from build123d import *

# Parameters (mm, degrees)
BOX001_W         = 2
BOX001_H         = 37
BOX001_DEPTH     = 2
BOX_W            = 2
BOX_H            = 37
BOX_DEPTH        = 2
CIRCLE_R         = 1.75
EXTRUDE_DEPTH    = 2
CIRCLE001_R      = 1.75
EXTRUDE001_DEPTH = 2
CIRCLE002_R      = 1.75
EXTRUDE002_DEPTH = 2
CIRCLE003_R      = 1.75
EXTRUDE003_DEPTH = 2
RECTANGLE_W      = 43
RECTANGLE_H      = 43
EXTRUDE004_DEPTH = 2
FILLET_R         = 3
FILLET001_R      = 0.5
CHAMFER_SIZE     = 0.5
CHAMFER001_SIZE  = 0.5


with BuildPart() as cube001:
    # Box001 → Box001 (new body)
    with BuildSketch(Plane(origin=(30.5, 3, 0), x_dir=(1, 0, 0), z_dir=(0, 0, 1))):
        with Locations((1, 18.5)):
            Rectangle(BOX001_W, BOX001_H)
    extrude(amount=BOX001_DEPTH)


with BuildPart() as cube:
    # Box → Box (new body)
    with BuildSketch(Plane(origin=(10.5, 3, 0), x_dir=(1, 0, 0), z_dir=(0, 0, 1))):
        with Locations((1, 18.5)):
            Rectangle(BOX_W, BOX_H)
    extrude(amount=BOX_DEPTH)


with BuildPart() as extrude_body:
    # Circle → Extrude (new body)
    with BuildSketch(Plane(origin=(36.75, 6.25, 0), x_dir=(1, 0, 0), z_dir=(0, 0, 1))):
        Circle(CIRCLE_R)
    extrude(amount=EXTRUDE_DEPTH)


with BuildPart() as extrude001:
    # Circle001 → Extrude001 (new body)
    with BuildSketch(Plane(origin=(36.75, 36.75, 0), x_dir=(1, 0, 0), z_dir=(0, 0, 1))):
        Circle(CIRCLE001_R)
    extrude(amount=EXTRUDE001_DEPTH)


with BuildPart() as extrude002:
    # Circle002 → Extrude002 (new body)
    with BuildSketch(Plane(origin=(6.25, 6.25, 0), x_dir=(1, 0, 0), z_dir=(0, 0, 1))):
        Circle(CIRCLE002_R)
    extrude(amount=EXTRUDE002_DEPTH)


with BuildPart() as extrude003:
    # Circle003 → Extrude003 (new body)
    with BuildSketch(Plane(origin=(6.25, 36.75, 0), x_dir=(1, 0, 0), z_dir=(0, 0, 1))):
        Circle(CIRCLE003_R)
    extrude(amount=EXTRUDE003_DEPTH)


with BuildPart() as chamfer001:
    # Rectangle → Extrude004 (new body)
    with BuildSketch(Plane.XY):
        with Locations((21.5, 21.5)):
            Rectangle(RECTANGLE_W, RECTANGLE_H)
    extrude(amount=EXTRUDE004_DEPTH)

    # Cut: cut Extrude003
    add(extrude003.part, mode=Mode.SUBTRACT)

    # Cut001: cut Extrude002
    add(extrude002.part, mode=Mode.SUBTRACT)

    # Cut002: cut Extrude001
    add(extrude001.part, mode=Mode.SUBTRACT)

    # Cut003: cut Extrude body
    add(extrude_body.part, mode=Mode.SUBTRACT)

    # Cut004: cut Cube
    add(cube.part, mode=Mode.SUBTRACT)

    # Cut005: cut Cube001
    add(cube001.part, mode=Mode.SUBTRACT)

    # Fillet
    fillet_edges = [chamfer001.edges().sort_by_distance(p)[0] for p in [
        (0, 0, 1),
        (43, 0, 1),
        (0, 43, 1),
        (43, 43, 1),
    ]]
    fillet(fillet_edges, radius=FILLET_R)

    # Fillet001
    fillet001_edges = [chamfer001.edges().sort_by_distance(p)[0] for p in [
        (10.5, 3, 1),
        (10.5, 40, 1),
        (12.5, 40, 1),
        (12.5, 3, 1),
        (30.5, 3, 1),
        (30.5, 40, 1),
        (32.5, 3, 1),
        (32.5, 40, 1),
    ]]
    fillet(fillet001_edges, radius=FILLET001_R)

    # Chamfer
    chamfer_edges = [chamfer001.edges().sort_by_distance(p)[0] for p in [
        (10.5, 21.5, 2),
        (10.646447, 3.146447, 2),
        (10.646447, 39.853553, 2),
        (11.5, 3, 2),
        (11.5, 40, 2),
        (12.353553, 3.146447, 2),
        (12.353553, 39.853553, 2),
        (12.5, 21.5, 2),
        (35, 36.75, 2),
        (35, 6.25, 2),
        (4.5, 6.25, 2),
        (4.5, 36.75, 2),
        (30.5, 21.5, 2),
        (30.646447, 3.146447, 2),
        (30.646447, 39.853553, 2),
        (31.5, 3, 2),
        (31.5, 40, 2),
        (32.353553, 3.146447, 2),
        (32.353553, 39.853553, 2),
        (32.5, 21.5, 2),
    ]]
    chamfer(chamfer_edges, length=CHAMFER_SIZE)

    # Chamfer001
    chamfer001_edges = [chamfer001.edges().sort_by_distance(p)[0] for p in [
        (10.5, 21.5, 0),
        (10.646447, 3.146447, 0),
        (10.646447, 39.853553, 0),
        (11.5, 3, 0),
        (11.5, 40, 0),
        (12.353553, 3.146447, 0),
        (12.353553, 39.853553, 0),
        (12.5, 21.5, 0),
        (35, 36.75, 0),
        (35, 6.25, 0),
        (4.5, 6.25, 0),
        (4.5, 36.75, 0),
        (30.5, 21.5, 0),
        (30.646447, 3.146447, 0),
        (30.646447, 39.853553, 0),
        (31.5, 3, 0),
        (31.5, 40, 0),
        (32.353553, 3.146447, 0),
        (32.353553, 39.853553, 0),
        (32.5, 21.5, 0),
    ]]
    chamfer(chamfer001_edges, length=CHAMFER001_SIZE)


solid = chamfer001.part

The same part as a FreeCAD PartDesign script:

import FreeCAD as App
import Part
import Sketcher

V = App.Vector
Q = App.Units.Quantity


def edges_at(feature, points):
    """Names of the edges that pass closest to the given points."""
    edges = feature.Shape.Edges
    near = lambda p: min(range(len(edges)), key=lambda i: edges[i].distToShape(Part.Vertex(*p))[0])
    return sorted({f"Edge{near(p) + 1}" for p in points})

doc = App.newDocument("Part")
body = doc.addObject("PartDesign::Body", "Body")

# Sketch on XY plane
sketch1 = body.newObject("Sketcher::SketchObject", "Sketch")
sketch1.AttachmentSupport = (doc.getObject("XY_Plane"), [""])
sketch1.MapMode = "FlatFace"
sketch1.addGeometry(Part.LineSegment(V(30.5, 40, 0), V(30.5, 3, 0)), False)
sketch1.addGeometry(Part.LineSegment(V(30.5, 3, 0), V(32.5, 3, 0)), False)
sketch1.addGeometry(Part.LineSegment(V(32.5, 3, 0), V(32.5, 40, 0)), False)
sketch1.addGeometry(Part.LineSegment(V(32.5, 40, 0), V(30.5, 40, 0)), False)
sketch1.addConstraint(Sketcher.Constraint("Coincident", 0, 2, 1, 1))
sketch1.addConstraint(Sketcher.Constraint("Coincident", 1, 2, 2, 1))
sketch1.addConstraint(Sketcher.Constraint("Coincident", 2, 2, 3, 1))
sketch1.addConstraint(Sketcher.Constraint("Coincident", 3, 2, 0, 1))
sketch1.addConstraint(Sketcher.Constraint("Vertical", 0))
sketch1.addConstraint(Sketcher.Constraint("Horizontal", 1))
sketch1.addConstraint(Sketcher.Constraint("Vertical", 2))
sketch1.addConstraint(Sketcher.Constraint("Horizontal", 3))
sketch1.addConstraint(Sketcher.Constraint("DistanceX", 1, 1, 1, 2, Q("2 mm")))
sketch1.addConstraint(Sketcher.Constraint("DistanceY", 0, 2, 0, 1, Q("37 mm")))
sketch1.addConstraint(Sketcher.Constraint("DistanceY", -1, 1, 0, 2, Q("3 mm")))
sketch1.addConstraint(Sketcher.Constraint("DistanceX", -1, 1, 0, 2, Q("30.5 mm")))
pad1 = body.newObject("PartDesign::Pad", "Pad")
pad1.Profile = sketch1
pad1.Length = 2
body2 = doc.addObject("PartDesign::Body", "Body001")

# Sketch on XY plane
sketch2 = body2.newObject("Sketcher::SketchObject", "Sketch001")
sketch2.AttachmentSupport = (doc.getObject("XY_Plane001"), [""])
sketch2.MapMode = "FlatFace"
sketch2.addGeometry(Part.LineSegment(V(10.5, 40, 0), V(10.5, 3, 0)), False)
sketch2.addGeometry(Part.LineSegment(V(10.5, 3, 0), V(12.5, 3, 0)), False)
sketch2.addGeometry(Part.LineSegment(V(12.5, 3, 0), V(12.5, 40, 0)), False)
sketch2.addGeometry(Part.LineSegment(V(12.5, 40, 0), V(10.5, 40, 0)), False)
sketch2.addConstraint(Sketcher.Constraint("Coincident", 0, 2, 1, 1))
sketch2.addConstraint(Sketcher.Constraint("Coincident", 1, 2, 2, 1))
sketch2.addConstraint(Sketcher.Constraint("Coincident", 2, 2, 3, 1))
sketch2.addConstraint(Sketcher.Constraint("Coincident", 3, 2, 0, 1))
sketch2.addConstraint(Sketcher.Constraint("Vertical", 0))
sketch2.addConstraint(Sketcher.Constraint("Horizontal", 1))
sketch2.addConstraint(Sketcher.Constraint("Vertical", 2))
sketch2.addConstraint(Sketcher.Constraint("Horizontal", 3))
sketch2.addConstraint(Sketcher.Constraint("DistanceX", 1, 1, 1, 2, Q("2 mm")))
sketch2.addConstraint(Sketcher.Constraint("DistanceY", 0, 2, 0, 1, Q("37 mm")))
sketch2.addConstraint(Sketcher.Constraint("DistanceY", -1, 1, 0, 2, Q("3 mm")))
sketch2.addConstraint(Sketcher.Constraint("DistanceX", -1, 1, 0, 2, Q("10.5 mm")))
pad2 = body2.newObject("PartDesign::Pad", "Pad001")
pad2.Profile = sketch2
pad2.Length = 2
body3 = doc.addObject("PartDesign::Body", "Body002")

# Sketch on XY plane
sketch3 = body3.newObject("Sketcher::SketchObject", "Sketch002")
sketch3.AttachmentSupport = (doc.getObject("XY_Plane002"), [""])
sketch3.MapMode = "FlatFace"
sketch3.addGeometry(Part.Circle(V(36.8, 6.2, 0), V(0, 0, 1), 1.8), False)
sketch3.addConstraint(Sketcher.Constraint("Diameter", 0, Q("3.5 mm")))
sketch3.addConstraint(Sketcher.Constraint("DistanceX", -1, 1, 0, 3, Q("36.75 mm")))
sketch3.addConstraint(Sketcher.Constraint("DistanceY", -1, 1, 0, 3, Q("6.25 mm")))
pad3 = body3.newObject("PartDesign::Pad", "Pad002")
pad3.Profile = sketch3
pad3.Length = 2
body4 = doc.addObject("PartDesign::Body", "Body003")

# Sketch on XY plane
sketch4 = body4.newObject("Sketcher::SketchObject", "Sketch003")
sketch4.AttachmentSupport = (doc.getObject("XY_Plane003"), [""])
sketch4.MapMode = "FlatFace"
sketch4.addGeometry(Part.Circle(V(36.8, 36.8, 0), V(0, 0, 1), 1.8), False)
sketch4.addConstraint(Sketcher.Constraint("Diameter", 0, Q("3.5 mm")))
sketch4.addConstraint(Sketcher.Constraint("DistanceX", -1, 1, 0, 3, Q("36.75 mm")))
sketch4.addConstraint(Sketcher.Constraint("DistanceY", -1, 1, 0, 3, Q("36.75 mm")))
pad4 = body4.newObject("PartDesign::Pad", "Pad003")
pad4.Profile = sketch4
pad4.Length = 2
body5 = doc.addObject("PartDesign::Body", "Body004")

# Sketch on XY plane
sketch5 = body5.newObject("Sketcher::SketchObject", "Sketch004")
sketch5.AttachmentSupport = (doc.getObject("XY_Plane004"), [""])
sketch5.MapMode = "FlatFace"
sketch5.addGeometry(Part.Circle(V(6.2, 6.2, 0), V(0, 0, 1), 1.8), False)
sketch5.addConstraint(Sketcher.Constraint("Diameter", 0, Q("3.5 mm")))
sketch5.addConstraint(Sketcher.Constraint("DistanceX", -1, 1, 0, 3, Q("6.25 mm")))
sketch5.addConstraint(Sketcher.Constraint("DistanceY", -1, 1, 0, 3, Q("6.25 mm")))
pad5 = body5.newObject("PartDesign::Pad", "Pad004")
pad5.Profile = sketch5
pad5.Length = 2
body6 = doc.addObject("PartDesign::Body", "Body005")

# Sketch on XY plane
sketch6 = body6.newObject("Sketcher::SketchObject", "Sketch005")
sketch6.AttachmentSupport = (doc.getObject("XY_Plane005"), [""])
sketch6.MapMode = "FlatFace"
sketch6.addGeometry(Part.Circle(V(6.2, 36.8, 0), V(0, 0, 1), 1.8), False)
sketch6.addConstraint(Sketcher.Constraint("Diameter", 0, Q("3.5 mm")))
sketch6.addConstraint(Sketcher.Constraint("DistanceX", -1, 1, 0, 3, Q("6.25 mm")))
sketch6.addConstraint(Sketcher.Constraint("DistanceY", -1, 1, 0, 3, Q("36.75 mm")))
pad6 = body6.newObject("PartDesign::Pad", "Pad005")
pad6.Profile = sketch6
pad6.Length = 2
body7 = doc.addObject("PartDesign::Body", "Body006")

# Sketch on XY plane
sketch7 = body7.newObject("Sketcher::SketchObject", "Sketch006")
sketch7.AttachmentSupport = (doc.getObject("XY_Plane006"), [""])
sketch7.MapMode = "FlatFace"
sketch7.addGeometry(Part.LineSegment(V(0, 43, 0), V(0, 0, 0)), False)
sketch7.addGeometry(Part.LineSegment(V(0, 0, 0), V(43, 0, 0)), False)
sketch7.addGeometry(Part.LineSegment(V(43, 0, 0), V(43, 43, 0)), False)
sketch7.addGeometry(Part.LineSegment(V(43, 43, 0), V(0, 43, 0)), False)
sketch7.addConstraint(Sketcher.Constraint("Coincident", 0, 2, 1, 1))
sketch7.addConstraint(Sketcher.Constraint("Coincident", 1, 2, 2, 1))
sketch7.addConstraint(Sketcher.Constraint("Coincident", 2, 2, 3, 1))
sketch7.addConstraint(Sketcher.Constraint("Coincident", 3, 2, 0, 1))
sketch7.addConstraint(Sketcher.Constraint("Vertical", 0))
sketch7.addConstraint(Sketcher.Constraint("Horizontal", 1))
sketch7.addConstraint(Sketcher.Constraint("Vertical", 2))
sketch7.addConstraint(Sketcher.Constraint("Horizontal", 3))
sketch7.addConstraint(Sketcher.Constraint("Coincident", 0, 2, -1, 1))
sketch7.addConstraint(Sketcher.Constraint("Equal", 3, 0))
sketch7.addConstraint(Sketcher.Constraint("DistanceX", 1, 1, 1, 2, Q("43 mm")))
pad7 = body7.newObject("PartDesign::Pad", "Pad006")
pad7.Profile = sketch7
pad7.Length = 2
doc.recompute()

boolean = body7.newObject("PartDesign::Boolean", "Boolean")
boolean.Type = "Cut"
boolean.addObjects([body6])
doc.recompute()

boolean2 = body7.newObject("PartDesign::Boolean", "Boolean001")
boolean2.Type = "Cut"
boolean2.addObjects([body5])
doc.recompute()

boolean3 = body7.newObject("PartDesign::Boolean", "Boolean002")
boolean3.Type = "Cut"
boolean3.addObjects([body4])
doc.recompute()

boolean4 = body7.newObject("PartDesign::Boolean", "Boolean003")
boolean4.Type = "Cut"
boolean4.addObjects([body3])
doc.recompute()

boolean5 = body7.newObject("PartDesign::Boolean", "Boolean004")
boolean5.Type = "Cut"
boolean5.addObjects([body2])
doc.recompute()

boolean6 = body7.newObject("PartDesign::Boolean", "Boolean005")
boolean6.Type = "Cut"
boolean6.addObjects([body])
doc.recompute()

fillet = body7.newObject("PartDesign::Fillet", "Fillet")
fillet.Base = (boolean6, edges_at(boolean6, [
    (0, 0, 1),
    (43, 0, 1),
    (0, 43, 1),
    (43, 43, 1),
]))
fillet.Radius = 3
doc.recompute()

fillet2 = body7.newObject("PartDesign::Fillet", "Fillet001")
fillet2.Base = (fillet, edges_at(fillet, [
    (10.5, 3, 1),
    (10.5, 40, 1),
    (12.5, 40, 1),
    (12.5, 3, 1),
    (30.5, 3, 1),
    (30.5, 40, 1),
    (32.5, 3, 1),
    (32.5, 40, 1),
]))
fillet2.Radius = 0.5
doc.recompute()

chamfer = body7.newObject("PartDesign::Chamfer", "Chamfer")
chamfer.Base = (fillet2, edges_at(fillet2, [
    (10.5, 21.5, 2),
    (10.646, 3.146, 2),
    (10.646, 39.854, 2),
    (11.5, 3, 2),
    (11.5, 40, 2),
    (12.354, 3.146, 2),
    (12.354, 39.854, 2),
    (12.5, 21.5, 2),
    (35, 36.75, 2),
    (35, 6.25, 2),
    (4.5, 6.25, 2),
    (4.5, 36.75, 2),
    (30.5, 21.5, 2),
    (30.646, 3.146, 2),
    (30.646, 39.854, 2),
    (31.5, 3, 2),
    (31.5, 40, 2),
    (32.354, 3.146, 2),
    (32.354, 39.854, 2),
    (32.5, 21.5, 2),
]))
chamfer.Size = 0.5
doc.recompute()

chamfer2 = body7.newObject("PartDesign::Chamfer", "Chamfer001")
chamfer2.Base = (chamfer, edges_at(chamfer, [
    (10.5, 21.5, 0),
    (10.646, 3.146, 0),
    (10.646, 39.854, 0),
    (11.5, 3, 0),
    (11.5, 40, 0),
    (12.354, 3.146, 0),
    (12.354, 39.854, 0),
    (12.5, 21.5, 0),
    (35, 36.75, 0),
    (35, 6.25, 0),
    (4.5, 6.25, 0),
    (4.5, 36.75, 0),
    (30.5, 21.5, 0),
    (30.646, 3.146, 0),
    (30.646, 39.854, 0),
    (31.5, 3, 0),
    (31.5, 40, 0),
    (32.354, 3.146, 0),
    (32.354, 39.854, 0),
    (32.5, 21.5, 0),
]))
chamfer2.Size = 0.5

doc.recompute()
